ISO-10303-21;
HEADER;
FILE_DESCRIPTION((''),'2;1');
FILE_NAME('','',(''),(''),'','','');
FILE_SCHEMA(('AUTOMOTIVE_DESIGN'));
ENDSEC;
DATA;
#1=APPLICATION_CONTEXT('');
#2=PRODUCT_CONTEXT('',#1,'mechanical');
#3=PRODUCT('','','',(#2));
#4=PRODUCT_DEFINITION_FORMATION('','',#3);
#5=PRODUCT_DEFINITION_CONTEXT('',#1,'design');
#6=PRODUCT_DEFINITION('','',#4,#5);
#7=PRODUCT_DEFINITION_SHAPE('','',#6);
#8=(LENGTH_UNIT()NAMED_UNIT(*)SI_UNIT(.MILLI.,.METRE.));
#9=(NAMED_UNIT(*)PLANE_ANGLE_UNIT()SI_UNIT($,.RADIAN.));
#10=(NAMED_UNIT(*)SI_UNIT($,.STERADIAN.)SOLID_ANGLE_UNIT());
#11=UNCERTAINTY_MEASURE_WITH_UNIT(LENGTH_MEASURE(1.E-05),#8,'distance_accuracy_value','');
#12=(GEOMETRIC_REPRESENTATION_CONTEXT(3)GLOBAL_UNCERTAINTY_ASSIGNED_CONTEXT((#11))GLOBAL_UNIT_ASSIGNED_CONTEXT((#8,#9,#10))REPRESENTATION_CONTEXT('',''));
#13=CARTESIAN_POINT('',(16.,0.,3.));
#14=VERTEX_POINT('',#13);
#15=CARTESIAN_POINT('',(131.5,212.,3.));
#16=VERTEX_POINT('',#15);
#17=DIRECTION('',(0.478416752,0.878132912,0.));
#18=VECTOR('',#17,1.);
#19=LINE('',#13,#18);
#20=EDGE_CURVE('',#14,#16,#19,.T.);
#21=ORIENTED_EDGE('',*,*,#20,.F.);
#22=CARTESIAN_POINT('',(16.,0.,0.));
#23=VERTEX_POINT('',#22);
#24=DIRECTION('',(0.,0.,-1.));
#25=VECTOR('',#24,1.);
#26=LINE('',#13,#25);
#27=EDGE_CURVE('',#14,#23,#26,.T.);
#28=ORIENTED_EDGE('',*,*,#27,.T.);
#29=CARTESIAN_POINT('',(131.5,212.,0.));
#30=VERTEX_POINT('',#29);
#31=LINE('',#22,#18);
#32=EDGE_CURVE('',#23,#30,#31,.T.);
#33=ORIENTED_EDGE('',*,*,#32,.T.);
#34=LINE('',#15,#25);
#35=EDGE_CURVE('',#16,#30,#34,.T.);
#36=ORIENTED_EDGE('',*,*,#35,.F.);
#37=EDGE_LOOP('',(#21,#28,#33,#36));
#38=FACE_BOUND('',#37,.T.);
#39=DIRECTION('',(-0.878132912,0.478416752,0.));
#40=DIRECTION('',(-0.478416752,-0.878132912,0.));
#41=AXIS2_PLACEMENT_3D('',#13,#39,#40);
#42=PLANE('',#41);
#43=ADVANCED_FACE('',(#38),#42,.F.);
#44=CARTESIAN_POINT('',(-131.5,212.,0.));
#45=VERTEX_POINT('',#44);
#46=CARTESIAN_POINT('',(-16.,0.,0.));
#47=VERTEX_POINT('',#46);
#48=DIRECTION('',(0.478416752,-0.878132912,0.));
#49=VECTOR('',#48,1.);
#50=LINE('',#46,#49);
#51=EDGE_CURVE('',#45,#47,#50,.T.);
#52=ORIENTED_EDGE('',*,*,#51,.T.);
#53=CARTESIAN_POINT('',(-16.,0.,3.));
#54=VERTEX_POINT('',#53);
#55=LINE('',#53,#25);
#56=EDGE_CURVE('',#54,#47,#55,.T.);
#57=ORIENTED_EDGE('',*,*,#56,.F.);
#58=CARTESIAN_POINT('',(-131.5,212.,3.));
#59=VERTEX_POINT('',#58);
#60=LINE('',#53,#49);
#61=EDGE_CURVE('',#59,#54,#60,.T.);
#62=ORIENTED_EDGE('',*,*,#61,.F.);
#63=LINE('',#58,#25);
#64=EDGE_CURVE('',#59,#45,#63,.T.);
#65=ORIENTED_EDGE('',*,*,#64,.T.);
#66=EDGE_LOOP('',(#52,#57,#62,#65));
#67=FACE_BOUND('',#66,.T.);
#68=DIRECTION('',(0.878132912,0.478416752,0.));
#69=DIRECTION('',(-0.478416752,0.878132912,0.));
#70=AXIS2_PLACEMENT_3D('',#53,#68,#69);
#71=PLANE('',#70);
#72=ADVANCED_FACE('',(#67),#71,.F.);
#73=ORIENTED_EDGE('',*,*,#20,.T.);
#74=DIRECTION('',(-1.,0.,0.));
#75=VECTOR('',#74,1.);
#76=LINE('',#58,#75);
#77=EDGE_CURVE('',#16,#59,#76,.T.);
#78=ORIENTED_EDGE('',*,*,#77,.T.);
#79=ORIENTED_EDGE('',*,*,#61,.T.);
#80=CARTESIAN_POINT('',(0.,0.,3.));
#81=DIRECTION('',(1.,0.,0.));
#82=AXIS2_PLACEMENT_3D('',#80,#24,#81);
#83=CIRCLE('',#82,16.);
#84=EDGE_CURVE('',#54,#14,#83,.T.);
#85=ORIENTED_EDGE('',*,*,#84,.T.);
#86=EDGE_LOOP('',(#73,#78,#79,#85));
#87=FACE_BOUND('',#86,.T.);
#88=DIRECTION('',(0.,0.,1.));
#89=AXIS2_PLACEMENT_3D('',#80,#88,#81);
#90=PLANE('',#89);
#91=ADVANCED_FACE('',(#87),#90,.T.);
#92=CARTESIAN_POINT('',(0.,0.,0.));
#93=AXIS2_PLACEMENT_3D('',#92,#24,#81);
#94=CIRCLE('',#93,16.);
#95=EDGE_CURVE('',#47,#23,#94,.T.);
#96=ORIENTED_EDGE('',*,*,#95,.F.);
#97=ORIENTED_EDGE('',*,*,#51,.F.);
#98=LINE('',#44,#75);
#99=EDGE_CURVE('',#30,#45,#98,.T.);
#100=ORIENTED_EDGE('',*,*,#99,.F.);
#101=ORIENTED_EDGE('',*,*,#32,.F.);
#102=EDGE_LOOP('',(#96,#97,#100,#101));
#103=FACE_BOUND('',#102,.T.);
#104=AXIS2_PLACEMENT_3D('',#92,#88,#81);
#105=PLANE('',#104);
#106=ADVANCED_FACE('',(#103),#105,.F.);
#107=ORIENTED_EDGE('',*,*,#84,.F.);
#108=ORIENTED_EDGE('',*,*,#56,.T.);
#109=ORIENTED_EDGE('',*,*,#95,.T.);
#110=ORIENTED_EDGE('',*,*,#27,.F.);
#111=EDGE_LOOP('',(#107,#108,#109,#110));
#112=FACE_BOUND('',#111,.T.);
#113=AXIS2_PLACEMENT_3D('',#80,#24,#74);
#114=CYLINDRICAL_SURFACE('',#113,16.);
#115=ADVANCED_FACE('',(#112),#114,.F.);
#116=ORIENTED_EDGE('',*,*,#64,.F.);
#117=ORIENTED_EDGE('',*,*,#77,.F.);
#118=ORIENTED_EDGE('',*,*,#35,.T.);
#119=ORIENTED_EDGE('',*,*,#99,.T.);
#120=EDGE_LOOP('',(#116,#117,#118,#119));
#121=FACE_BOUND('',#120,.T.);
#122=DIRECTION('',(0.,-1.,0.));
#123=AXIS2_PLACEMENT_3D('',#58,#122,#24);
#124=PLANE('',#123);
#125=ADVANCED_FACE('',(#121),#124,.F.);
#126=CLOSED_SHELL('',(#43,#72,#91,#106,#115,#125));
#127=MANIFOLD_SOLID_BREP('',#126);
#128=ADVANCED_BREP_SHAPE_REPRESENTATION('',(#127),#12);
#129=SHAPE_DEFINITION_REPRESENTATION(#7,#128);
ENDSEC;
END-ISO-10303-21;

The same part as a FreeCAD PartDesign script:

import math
import FreeCAD as App
import Part
import Sketcher
from FreeCAD import Vector
Q = App.Units.Quantity

doc = App.newDocument("Part")
body = doc.addObject("PartDesign::Body", "Body")

# Sketch on XY plane
sketch1 = body.newObject("Sketcher::SketchObject", "Sketch")
sketch1.AttachmentSupport = (doc.getObject("XY_Plane"), [""])
sketch1.MapMode = "FlatFace"
sketch1.addGeometry([
    Part.LineSegment(Vector(132, 212, 0), Vector(-132, 212, 0)),
    Part.LineSegment(Vector(-132, 212, 0), Vector(-16, 0, 0)),
    Part.ArcOfCircle(Part.Circle(Vector(0, 0, 0), Vector(0, 0, 1), 16), math.radians(0), math.radians(180)),
    Part.LineSegment(Vector(16, 0, 0), Vector(132, 212, 0)),
], False)
sketch1.addConstraint([
    Sketcher.Constraint("Coincident", 0, 2, 1, 1),
    Sketcher.Constraint("Coincident", 1, 2, 2, 2),
    Sketcher.Constraint("Coincident", 2, 1, 3, 1),
    Sketcher.Constraint("Coincident", 3, 2, 0, 1),
    Sketcher.Constraint("Horizontal", 0),
    Sketcher.Constraint("Coincident", 2, 3, -1, 1),
    Sketcher.Constraint("PointOnObject", 1, 2, -1),
    Sketcher.Constraint("PointOnObject", 2, 1, -1),
    Sketcher.Constraint("Equal", 1, 3),
    Sketcher.Constraint("Radius", 2, Q("16 mm")),
    Sketcher.Constraint("DistanceX", 0, 2, 0, 1, Q("263 mm")),
    Sketcher.Constraint("DistanceY", -1, 1, 0, 2, Q("212 mm")),
])
pad1 = body.newObject("PartDesign::Pad", "Pad")
pad1.Profile = sketch1
pad1.Length = 3

doc.recompute()
